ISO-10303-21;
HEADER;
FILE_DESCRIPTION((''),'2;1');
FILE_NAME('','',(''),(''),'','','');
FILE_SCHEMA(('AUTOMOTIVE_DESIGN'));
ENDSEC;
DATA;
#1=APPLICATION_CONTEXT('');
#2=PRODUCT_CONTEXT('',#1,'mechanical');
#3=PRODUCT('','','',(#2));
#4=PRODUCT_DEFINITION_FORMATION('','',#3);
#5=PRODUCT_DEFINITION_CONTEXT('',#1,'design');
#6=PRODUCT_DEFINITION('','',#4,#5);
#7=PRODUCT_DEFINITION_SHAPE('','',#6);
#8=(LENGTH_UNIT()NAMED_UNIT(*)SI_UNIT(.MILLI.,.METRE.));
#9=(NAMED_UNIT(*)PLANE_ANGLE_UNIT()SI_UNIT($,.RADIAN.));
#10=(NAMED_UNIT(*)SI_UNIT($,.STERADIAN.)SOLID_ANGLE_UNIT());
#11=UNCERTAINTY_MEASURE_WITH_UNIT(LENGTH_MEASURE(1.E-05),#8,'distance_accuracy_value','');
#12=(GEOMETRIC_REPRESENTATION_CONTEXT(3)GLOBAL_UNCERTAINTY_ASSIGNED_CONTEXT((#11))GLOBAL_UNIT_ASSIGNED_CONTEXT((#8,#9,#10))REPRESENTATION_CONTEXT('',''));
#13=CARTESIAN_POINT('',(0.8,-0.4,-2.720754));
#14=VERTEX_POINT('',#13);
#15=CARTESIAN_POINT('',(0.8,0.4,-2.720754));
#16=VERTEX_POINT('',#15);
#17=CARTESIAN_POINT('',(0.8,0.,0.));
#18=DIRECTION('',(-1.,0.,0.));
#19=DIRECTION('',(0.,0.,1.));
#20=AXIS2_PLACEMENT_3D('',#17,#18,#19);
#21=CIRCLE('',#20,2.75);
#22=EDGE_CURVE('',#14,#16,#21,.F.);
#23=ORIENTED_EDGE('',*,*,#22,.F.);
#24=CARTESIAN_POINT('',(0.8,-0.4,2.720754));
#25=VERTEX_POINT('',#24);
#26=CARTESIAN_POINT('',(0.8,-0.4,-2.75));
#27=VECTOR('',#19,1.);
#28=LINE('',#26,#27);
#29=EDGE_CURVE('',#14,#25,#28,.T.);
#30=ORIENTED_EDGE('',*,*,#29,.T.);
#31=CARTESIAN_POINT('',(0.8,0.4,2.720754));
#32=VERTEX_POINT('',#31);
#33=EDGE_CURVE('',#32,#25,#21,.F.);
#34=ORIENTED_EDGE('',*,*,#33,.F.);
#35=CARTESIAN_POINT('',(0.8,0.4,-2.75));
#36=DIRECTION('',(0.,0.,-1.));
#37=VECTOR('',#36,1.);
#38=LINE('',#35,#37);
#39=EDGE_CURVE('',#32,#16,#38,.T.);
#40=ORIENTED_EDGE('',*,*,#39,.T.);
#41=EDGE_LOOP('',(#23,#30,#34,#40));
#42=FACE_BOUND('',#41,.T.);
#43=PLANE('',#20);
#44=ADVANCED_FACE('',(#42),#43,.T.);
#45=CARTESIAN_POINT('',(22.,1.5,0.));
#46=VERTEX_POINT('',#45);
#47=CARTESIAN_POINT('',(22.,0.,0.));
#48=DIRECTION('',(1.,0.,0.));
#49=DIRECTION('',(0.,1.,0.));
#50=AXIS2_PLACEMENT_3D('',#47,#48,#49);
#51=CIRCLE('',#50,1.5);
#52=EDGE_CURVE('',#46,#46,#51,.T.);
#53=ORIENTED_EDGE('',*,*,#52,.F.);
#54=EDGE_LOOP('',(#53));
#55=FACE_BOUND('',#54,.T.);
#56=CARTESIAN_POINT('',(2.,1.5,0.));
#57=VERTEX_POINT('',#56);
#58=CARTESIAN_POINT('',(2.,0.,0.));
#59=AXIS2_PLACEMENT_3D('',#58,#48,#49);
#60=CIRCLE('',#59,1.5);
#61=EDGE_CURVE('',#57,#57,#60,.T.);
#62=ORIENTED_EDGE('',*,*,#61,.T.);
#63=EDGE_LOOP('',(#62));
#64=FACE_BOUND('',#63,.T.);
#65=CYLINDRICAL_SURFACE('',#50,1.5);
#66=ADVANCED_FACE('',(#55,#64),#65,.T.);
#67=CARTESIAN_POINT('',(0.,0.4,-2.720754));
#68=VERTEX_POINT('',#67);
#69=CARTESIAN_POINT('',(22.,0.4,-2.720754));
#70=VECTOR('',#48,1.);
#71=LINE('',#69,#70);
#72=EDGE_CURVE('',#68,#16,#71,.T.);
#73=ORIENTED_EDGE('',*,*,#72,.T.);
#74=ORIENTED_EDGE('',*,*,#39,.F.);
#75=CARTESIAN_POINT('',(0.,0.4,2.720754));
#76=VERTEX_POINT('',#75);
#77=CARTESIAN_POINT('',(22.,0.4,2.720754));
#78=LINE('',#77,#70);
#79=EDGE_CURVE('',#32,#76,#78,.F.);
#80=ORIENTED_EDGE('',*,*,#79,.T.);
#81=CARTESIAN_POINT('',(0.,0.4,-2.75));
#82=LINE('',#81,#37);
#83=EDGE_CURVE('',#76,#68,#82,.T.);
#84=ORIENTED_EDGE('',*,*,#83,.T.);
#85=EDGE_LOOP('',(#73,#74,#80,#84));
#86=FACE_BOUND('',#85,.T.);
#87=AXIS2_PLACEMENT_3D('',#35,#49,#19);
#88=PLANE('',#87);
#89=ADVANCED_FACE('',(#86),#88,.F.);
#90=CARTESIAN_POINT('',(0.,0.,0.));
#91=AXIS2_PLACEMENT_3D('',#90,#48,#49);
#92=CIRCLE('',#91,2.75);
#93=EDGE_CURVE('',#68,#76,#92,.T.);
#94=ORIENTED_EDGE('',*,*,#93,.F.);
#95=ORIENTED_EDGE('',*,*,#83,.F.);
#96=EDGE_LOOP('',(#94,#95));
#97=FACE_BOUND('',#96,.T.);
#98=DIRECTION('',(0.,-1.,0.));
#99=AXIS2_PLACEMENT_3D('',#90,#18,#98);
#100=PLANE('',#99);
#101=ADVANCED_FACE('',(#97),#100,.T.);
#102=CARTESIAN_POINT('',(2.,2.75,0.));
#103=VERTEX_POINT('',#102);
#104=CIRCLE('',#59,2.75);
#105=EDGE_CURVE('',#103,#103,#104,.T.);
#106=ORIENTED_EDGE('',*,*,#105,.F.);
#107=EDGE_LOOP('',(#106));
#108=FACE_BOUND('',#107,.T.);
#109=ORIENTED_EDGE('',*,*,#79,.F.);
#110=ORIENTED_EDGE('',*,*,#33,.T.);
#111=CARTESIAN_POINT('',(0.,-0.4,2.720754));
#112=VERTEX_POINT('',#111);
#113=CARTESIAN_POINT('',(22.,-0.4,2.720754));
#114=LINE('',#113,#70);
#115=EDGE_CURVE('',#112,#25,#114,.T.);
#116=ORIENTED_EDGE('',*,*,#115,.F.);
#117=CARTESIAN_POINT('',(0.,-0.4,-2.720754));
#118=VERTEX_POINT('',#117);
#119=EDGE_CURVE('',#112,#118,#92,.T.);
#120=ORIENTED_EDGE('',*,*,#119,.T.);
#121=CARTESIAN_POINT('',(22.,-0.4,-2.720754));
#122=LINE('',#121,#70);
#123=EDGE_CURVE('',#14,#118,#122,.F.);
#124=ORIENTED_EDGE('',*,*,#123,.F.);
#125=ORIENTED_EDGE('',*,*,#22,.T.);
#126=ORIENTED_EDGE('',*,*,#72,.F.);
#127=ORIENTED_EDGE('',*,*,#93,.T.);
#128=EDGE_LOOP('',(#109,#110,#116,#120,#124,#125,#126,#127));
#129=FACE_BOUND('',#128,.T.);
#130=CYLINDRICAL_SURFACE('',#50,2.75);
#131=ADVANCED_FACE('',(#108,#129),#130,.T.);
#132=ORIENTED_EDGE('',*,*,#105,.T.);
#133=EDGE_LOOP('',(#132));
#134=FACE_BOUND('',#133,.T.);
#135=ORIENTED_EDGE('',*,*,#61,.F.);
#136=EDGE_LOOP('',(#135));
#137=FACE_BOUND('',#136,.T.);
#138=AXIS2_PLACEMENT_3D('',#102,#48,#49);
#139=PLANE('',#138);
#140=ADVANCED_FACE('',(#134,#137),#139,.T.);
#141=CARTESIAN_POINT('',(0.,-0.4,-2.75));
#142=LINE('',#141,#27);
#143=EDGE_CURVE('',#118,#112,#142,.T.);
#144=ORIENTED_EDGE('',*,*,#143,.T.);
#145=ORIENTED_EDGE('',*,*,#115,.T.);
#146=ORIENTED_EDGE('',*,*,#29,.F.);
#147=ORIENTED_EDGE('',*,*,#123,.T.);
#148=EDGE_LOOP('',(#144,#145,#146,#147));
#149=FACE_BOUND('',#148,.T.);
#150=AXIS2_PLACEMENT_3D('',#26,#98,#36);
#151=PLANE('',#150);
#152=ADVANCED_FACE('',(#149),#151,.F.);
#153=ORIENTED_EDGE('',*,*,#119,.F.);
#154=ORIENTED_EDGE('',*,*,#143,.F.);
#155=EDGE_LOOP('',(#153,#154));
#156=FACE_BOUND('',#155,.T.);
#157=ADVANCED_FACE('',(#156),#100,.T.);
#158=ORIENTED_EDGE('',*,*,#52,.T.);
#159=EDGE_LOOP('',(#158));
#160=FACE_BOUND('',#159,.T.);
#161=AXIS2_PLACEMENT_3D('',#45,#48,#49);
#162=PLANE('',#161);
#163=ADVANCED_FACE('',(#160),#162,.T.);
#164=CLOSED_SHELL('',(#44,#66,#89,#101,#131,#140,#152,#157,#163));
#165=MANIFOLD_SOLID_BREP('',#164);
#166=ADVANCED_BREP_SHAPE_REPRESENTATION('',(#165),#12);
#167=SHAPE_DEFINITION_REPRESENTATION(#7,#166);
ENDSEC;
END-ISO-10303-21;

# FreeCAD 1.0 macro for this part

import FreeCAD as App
import Part
import Sketcher
from FreeCAD import Vector
Q = App.Units.Quantity


def add_polygon(sketch, points):
    """Adds a closed chain of lines whose ends are joined by coincident constraints."""
    first, n = sketch.GeometryCount, len(points)
    for a, b in zip(points, points[1:] + points[:1]):
        sketch.addGeometry(Part.LineSegment(App.Vector(*a, 0), App.Vector(*b, 0)), False)
    for i in range(n):
        sketch.addConstraint(Sketcher.Constraint("Coincident", first + i, 2, first + (i + 1) % n, 1))

doc = App.newDocument("Part")
params = doc.addObject("Spreadsheet::Sheet", "Params")
for row, (alias, value) in enumerate([
    ("sketch1_width", "22 mm"),
    ("sketch1_width2", "20 mm"),
    ("sketch1_height", "1.5 mm"),
    ("sketch1_height2", "2.75 mm"),
    ("revolution_angle", "360 deg"),
    ("sketch2_width", "0.8 mm"),
    ("sketch2_height", "5.5 mm"),
    ("pocket1_length", "0.8 mm"),
], start=1):
    params.set(f"A{row}", alias)
    params.set(f"B{row}", "=" + value)
    params.setAlias(f"B{row}", alias)

body = doc.addObject("PartDesign::Body", "Body")

# Sketch on XY plane
sketch1 = body.newObject("Sketcher::SketchObject", "Sketch")
sketch1.AttachmentSupport = (doc.getObject("XY_Plane"), [""])
sketch1.MapMode = "FlatFace"
add_polygon(sketch1, [(0, 2.8), (0, 0), (22, 0), (22, 1.5), (2, 1.5), (2, 2.8)])  # lines 0-5
sketch1.addConstraint([
    Sketcher.Constraint("Vertical", 0),
    Sketcher.Constraint("Horizontal", 1),
    Sketcher.Constraint("Vertical", 2),
    Sketcher.Constraint("Horizontal", 3),
    Sketcher.Constraint("Vertical", 4),
    Sketcher.Constraint("Horizontal", 5),
    Sketcher.Constraint("Coincident", 0, 2, -1, 1),
    Sketcher.Constraint("DistanceX", 1, 1, 1, 2, Q("22 mm")),
    Sketcher.Constraint("DistanceX", 3, 2, 3, 1, Q("20 mm")),
    Sketcher.Constraint("DistanceY", 2, 1, 2, 2, Q("1.5 mm")),
    Sketcher.Constraint("DistanceY", 0, 2, 0, 1, Q("2.75 mm")),
])
sketch1.setExpression("Constraints[13]", "Params.sketch1_width")
sketch1.setExpression("Constraints[14]", "Params.sketch1_width2")
sketch1.setExpression("Constraints[15]", "Params.sketch1_height")
sketch1.setExpression("Constraints[16]", "Params.sketch1_height2")
revolution = body.newObject("PartDesign::Revolution", "Revolution")
revolution.Profile = sketch1
revolution.ReferenceAxis = (sketch1, ["H_Axis"])
revolution.setExpression("Angle", "Params.revolution_angle")

# Sketch on YZ plane
sketch2 = body.newObject("Sketcher::SketchObject", "Sketch001")
sketch2.AttachmentSupport = (doc.getObject("YZ_Plane"), [""])
sketch2.MapMode = "FlatFace"
add_polygon(sketch2, [(0.4, -2.8), (-0.4, -2.8), (-0.4, 2.8), (0.4, 2.8)])  # lines 0-3
sketch2.addConstraint([
    Sketcher.Constraint("Horizontal", 0),
    Sketcher.Constraint("Vertical", 1),
    Sketcher.Constraint("Horizontal", 2),
    Sketcher.Constraint("Vertical", 3),
    Sketcher.Constraint("Symmetric", 0, 2, 2, 2, -1, 1),
    Sketcher.Constraint("DistanceX", 0, 2, 0, 1, Q("0.8 mm")),
    Sketcher.Constraint("DistanceY", 1, 1, 1, 2, Q("5.5 mm")),
])
sketch2.setExpression("Constraints[9]", "Params.sketch2_width")
sketch2.setExpression("Constraints[10]", "Params.sketch2_height")
pocket1 = body.newObject("PartDesign::Pocket", "Pocket")
pocket1.Profile = sketch2
pocket1.setExpression("Length", "Params.pocket1_length")
pocket1.Reversed = True

doc.recompute()
